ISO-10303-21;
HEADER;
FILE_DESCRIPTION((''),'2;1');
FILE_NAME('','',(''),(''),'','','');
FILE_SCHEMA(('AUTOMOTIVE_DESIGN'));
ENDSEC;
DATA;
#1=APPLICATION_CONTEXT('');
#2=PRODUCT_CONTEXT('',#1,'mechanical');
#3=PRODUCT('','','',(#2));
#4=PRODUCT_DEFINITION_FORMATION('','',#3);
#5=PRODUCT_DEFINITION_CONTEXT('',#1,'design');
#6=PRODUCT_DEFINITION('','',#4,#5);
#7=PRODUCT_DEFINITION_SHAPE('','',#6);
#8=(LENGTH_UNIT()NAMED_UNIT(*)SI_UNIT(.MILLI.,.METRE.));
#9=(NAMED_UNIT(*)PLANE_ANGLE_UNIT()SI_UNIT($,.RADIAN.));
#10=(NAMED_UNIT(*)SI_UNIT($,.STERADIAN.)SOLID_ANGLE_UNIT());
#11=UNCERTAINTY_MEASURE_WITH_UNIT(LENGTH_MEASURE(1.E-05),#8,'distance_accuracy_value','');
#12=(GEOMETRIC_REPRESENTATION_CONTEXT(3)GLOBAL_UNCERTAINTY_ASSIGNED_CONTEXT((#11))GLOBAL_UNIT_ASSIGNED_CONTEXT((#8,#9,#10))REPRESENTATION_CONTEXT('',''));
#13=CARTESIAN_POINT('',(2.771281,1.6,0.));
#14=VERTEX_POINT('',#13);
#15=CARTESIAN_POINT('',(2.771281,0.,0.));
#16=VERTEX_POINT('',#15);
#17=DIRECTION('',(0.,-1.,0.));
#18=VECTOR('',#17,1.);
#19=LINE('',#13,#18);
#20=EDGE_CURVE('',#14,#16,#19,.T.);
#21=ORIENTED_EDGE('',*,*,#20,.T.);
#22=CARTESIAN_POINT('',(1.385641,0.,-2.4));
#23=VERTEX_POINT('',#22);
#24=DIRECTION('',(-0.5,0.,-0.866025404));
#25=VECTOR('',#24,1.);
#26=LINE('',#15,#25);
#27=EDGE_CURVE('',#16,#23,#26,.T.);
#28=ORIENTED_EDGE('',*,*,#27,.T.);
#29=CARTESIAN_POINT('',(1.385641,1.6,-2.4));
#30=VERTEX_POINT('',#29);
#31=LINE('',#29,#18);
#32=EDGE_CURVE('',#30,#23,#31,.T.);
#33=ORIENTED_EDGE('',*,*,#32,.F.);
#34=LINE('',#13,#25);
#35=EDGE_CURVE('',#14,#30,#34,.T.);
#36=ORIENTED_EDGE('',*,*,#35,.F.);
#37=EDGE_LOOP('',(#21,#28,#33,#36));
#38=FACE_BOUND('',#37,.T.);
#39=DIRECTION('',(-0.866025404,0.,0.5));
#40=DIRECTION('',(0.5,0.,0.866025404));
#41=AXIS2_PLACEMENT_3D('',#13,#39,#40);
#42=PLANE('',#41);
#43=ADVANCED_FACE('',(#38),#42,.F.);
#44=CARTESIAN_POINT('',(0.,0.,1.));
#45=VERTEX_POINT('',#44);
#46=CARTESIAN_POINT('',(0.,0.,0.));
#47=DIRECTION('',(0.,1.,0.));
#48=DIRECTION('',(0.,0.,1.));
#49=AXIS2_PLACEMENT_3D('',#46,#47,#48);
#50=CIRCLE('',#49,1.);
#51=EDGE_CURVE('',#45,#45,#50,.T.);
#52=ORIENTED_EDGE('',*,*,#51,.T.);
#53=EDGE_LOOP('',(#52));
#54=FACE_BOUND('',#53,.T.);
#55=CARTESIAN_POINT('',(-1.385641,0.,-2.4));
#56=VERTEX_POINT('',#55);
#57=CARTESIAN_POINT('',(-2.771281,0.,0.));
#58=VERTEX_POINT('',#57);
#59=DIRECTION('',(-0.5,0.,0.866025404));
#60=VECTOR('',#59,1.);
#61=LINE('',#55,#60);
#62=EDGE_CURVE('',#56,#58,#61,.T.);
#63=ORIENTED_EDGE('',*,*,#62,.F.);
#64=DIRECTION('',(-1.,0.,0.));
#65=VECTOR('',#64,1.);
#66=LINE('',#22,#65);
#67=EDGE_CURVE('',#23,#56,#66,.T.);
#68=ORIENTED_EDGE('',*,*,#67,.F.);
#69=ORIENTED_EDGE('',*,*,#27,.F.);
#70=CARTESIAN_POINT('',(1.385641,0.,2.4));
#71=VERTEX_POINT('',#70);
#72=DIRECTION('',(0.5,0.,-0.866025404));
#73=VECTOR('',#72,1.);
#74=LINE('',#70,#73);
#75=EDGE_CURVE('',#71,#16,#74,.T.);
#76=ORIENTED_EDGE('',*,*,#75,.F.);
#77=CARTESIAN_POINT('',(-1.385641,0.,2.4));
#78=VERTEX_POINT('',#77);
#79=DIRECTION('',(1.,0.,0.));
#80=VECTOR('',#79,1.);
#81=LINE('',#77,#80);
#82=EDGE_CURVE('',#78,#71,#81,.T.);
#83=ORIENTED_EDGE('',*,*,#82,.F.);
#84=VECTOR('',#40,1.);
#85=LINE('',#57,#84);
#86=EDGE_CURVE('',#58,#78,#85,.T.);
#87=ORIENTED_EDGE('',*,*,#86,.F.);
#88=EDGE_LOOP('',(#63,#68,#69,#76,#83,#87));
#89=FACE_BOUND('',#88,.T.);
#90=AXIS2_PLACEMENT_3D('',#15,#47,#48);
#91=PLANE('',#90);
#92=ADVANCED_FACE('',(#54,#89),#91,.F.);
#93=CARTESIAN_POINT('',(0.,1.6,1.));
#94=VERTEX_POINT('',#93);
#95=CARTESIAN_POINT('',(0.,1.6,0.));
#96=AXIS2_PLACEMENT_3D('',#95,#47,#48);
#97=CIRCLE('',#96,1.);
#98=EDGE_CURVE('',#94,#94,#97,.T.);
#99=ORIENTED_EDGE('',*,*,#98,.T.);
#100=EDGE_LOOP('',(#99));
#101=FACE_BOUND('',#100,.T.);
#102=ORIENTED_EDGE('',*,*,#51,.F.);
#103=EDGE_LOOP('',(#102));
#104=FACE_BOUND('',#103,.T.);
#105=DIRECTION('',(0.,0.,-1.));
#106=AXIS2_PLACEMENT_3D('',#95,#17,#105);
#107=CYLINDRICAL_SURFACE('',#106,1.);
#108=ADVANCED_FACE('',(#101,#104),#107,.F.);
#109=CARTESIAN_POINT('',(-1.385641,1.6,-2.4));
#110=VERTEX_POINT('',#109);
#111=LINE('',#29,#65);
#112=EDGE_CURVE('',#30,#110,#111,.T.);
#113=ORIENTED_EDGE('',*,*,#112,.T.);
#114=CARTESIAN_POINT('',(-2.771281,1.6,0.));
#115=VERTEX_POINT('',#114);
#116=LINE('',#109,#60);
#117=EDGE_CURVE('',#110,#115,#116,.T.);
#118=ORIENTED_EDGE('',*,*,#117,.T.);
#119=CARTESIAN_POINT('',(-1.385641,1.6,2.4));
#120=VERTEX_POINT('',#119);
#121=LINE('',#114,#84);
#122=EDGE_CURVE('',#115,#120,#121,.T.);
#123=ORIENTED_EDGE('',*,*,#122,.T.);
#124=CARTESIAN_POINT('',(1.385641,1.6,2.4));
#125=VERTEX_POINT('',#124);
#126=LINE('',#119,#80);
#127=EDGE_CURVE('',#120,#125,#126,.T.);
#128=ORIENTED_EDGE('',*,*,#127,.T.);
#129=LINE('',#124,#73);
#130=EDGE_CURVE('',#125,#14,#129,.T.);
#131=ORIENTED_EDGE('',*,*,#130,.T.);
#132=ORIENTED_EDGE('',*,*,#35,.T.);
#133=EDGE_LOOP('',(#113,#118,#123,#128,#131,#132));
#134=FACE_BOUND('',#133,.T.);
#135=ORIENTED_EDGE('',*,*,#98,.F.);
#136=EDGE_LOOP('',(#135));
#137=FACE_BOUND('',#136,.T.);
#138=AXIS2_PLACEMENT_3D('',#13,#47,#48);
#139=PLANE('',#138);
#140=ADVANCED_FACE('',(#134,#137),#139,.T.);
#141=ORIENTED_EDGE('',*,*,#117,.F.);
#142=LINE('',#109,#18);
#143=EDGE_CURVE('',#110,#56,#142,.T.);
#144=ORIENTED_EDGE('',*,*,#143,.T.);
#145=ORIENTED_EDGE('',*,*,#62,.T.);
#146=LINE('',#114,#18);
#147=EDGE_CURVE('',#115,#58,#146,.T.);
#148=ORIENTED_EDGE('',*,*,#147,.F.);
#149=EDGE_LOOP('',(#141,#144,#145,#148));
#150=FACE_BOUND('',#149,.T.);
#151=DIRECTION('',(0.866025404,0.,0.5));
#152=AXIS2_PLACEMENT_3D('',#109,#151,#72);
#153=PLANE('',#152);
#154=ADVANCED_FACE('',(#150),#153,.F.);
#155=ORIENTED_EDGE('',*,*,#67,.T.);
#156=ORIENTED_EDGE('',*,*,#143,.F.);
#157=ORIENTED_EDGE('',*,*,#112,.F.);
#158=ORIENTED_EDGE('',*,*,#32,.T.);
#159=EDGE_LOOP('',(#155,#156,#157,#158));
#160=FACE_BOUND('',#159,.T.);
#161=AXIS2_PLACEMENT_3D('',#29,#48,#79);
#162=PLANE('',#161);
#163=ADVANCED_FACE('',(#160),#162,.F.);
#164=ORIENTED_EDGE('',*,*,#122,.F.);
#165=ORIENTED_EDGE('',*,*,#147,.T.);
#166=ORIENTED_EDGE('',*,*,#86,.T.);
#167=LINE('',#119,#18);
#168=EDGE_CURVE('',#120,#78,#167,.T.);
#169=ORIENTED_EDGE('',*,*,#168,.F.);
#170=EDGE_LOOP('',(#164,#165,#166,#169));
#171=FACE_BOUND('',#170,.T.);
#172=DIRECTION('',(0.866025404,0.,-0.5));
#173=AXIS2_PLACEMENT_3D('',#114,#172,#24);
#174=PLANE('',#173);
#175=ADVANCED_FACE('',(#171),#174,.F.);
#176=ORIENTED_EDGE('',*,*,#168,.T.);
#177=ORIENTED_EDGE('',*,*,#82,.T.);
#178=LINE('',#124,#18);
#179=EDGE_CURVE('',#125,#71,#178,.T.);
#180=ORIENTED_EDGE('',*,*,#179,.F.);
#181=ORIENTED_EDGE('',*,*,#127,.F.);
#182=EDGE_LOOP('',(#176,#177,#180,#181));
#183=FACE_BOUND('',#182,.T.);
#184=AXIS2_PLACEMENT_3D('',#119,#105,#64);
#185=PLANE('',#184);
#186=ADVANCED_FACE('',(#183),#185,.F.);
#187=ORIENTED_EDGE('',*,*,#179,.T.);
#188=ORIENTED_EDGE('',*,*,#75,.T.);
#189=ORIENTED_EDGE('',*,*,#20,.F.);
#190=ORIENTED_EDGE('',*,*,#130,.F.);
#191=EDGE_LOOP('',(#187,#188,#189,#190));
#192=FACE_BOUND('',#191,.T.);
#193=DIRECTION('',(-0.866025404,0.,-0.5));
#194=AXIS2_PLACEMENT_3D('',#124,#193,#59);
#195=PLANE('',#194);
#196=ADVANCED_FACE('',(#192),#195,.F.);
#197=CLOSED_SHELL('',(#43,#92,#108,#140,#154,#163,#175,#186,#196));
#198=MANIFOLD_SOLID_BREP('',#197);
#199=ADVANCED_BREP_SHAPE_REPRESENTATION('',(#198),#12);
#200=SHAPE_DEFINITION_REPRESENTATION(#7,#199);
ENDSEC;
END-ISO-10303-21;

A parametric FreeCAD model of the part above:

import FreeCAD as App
import Part
import Sketcher
from FreeCAD import Vector
Q = App.Units.Quantity


def add_polygon(sketch, points):
    """Adds a closed chain of lines whose ends are joined by coincident constraints."""
    first, n = sketch.GeometryCount, len(points)
    for a, b in zip(points, points[1:] + points[:1]):
        sketch.addGeometry(Part.LineSegment(App.Vector(*a, 0), App.Vector(*b, 0)), False)
    for i in range(n):
        sketch.addConstraint(Sketcher.Constraint("Coincident", first + i, 2, first + (i + 1) % n, 1))

doc = App.newDocument("Part")
body = doc.addObject("PartDesign::Body", "Body")

sketch1 = body.newObject("Sketcher::SketchObject", "Sketch")
sketch1.AttachmentSupport = (doc.getObject("XZ_Plane"), [""])
sketch1.MapMode = "FlatFace"
add_polygon(sketch1, [(2.8, 0), (1.4, -2.4), (-1.4, -2.4), (-2.8, 0), (-1.4, 2.4), (1.4, 2.4)])
sketch1.addGeometry(Part.Circle(Vector(0, 0, 0), Vector(0, 0, 1), 1), False)
sketch1.addConstraint([
    Sketcher.Constraint("Horizontal", 1),
    Sketcher.Constraint("Horizontal", 4),
    Sketcher.Constraint("Coincident", 6, 3, -1, 1),
    Sketcher.Constraint("Symmetric", 0, 2, 3, 2, -1, 1),
    Sketcher.Constraint("Symmetric", 2, 2, 5, 2, -1, 1),
    Sketcher.Constraint("PointOnObject", 2, 2, -1),
    Sketcher.Constraint("Parallel", 2, 5),
    Sketcher.Constraint("Vertical", 1, 2, 3, 2),
    Sketcher.Constraint("Diameter", 6, Q("2 mm")),
    Sketcher.Constraint("Angle", 0, Q("-120 deg")),
    Sketcher.Constraint("DistanceY", 0, 2, -1, 1, Q("2.4 mm")),
    Sketcher.Constraint("DistanceX", 1, 2, 1, 1, Q("2.771281 mm")),
])
pad1 = body.newObject("PartDesign::Pad", "Pad")
pad1.Profile = sketch1
pad1.Length = 1.6
pad1.Reversed = True

doc.recompute()
